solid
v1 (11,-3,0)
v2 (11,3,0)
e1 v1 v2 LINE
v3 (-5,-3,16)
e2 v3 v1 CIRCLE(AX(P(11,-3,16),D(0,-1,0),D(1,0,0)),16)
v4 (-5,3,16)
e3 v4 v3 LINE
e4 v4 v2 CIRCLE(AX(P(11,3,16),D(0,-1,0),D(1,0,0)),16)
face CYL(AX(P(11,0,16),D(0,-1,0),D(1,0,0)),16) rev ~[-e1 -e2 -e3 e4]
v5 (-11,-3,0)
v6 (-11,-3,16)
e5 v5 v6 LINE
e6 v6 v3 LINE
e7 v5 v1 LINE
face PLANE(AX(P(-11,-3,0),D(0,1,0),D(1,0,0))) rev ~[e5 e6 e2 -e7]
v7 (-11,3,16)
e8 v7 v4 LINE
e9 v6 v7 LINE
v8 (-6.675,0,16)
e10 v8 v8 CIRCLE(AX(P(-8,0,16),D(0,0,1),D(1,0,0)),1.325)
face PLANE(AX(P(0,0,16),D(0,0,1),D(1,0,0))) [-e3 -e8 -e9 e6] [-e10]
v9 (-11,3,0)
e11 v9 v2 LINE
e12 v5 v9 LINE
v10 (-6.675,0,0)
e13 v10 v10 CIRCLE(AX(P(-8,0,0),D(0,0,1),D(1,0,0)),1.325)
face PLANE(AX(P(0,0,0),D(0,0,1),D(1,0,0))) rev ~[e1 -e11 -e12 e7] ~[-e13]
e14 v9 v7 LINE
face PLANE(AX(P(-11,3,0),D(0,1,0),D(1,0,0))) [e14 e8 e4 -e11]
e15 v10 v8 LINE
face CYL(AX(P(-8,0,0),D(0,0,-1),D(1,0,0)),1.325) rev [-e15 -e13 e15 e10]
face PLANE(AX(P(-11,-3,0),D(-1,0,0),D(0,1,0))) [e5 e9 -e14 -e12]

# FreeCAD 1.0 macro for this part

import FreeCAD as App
import Part
import Sketcher

V = App.Vector


def add_polygon(sketch, points):
    """Adds a closed chain of lines whose ends are joined by coincident constraints."""
    first, n = sketch.GeometryCount, len(points)
    for a, b in zip(points, points[1:] + points[:1]):
        sketch.addGeometry(Part.LineSegment(App.Vector(*a, 0), App.Vector(*b, 0)), False)
    for i in range(n):
        sketch.addConstraint(Sketcher.Constraint("Coincident", first + i, 2, first + (i + 1) % n, 1))

doc = App.newDocument("Part")
body = doc.addObject("PartDesign::Body", "Body")

# Sketch on XY plane
sketch1 = doc.addObject("Sketcher::SketchObject", "Sketch")
body.addObject(sketch1)
sketch1.AttachmentSupport = (doc.XY_Plane, [""])
sketch1.MapMode = "FlatFace"
add_polygon(sketch1, [(-11, 3), (-11, -3), (11, -3), (11, 3)])  # lines 0-3
sketch1.addGeometry(Part.Circle(V(-8, 0, 0), V(0, 0, 1), 1.3), False)  # 4
sketch1.addConstraint([
    Sketcher.Constraint("Vertical", 0),
    Sketcher.Constraint("Horizontal", 1),
    Sketcher.Constraint("Vertical", 2),
    Sketcher.Constraint("Horizontal", 3),
    Sketcher.Constraint("Symmetric", 0, 2, 2, 2, -1, 1),
    Sketcher.Constraint("PointOnObject", 4, 3, -1),
    Sketcher.Constraint("Diameter", 4, 2.65),
    Sketcher.Constraint("DistanceX", 1, 1, 1, 2, 22.0),
    Sketcher.Constraint("DistanceY", 0, 2, 0, 1, 6.0),
    Sketcher.Constraint("DistanceX", 4, 3, -1, 1, 8.0),
])
pad1 = doc.addObject("PartDesign::Pad", "Pad")
body.addObject(pad1)
pad1.Profile = sketch1
pad1.Length = 16

# Sketch on XZ plane
sketch2 = doc.addObject("Sketcher::SketchObject", "Sketch001")
body.addObject(sketch2)
sketch2.AttachmentSupport = (doc.XZ_Plane, [""])
sketch2.MapMode = "FlatFace"
sketch2.addGeometry(Part.Circle(V(11, 16, 0), V(0, 0, 1), 16), False)
sketch2.addConstraint([
    Sketcher.Constraint("Diameter", 0, 32.0),
    Sketcher.Constraint("DistanceX", -1, 1, 0, 3, 11.0),
    Sketcher.Constraint("DistanceY", -1, 1, 0, 3, 16.0),
])
pocket1 = doc.addObject("PartDesign::Pocket", "Pocket")
body.addObject(pocket1)
pocket1.Profile = sketch2
pocket1.Length = 10
pocket1.Midplane = True

doc.recompute()
